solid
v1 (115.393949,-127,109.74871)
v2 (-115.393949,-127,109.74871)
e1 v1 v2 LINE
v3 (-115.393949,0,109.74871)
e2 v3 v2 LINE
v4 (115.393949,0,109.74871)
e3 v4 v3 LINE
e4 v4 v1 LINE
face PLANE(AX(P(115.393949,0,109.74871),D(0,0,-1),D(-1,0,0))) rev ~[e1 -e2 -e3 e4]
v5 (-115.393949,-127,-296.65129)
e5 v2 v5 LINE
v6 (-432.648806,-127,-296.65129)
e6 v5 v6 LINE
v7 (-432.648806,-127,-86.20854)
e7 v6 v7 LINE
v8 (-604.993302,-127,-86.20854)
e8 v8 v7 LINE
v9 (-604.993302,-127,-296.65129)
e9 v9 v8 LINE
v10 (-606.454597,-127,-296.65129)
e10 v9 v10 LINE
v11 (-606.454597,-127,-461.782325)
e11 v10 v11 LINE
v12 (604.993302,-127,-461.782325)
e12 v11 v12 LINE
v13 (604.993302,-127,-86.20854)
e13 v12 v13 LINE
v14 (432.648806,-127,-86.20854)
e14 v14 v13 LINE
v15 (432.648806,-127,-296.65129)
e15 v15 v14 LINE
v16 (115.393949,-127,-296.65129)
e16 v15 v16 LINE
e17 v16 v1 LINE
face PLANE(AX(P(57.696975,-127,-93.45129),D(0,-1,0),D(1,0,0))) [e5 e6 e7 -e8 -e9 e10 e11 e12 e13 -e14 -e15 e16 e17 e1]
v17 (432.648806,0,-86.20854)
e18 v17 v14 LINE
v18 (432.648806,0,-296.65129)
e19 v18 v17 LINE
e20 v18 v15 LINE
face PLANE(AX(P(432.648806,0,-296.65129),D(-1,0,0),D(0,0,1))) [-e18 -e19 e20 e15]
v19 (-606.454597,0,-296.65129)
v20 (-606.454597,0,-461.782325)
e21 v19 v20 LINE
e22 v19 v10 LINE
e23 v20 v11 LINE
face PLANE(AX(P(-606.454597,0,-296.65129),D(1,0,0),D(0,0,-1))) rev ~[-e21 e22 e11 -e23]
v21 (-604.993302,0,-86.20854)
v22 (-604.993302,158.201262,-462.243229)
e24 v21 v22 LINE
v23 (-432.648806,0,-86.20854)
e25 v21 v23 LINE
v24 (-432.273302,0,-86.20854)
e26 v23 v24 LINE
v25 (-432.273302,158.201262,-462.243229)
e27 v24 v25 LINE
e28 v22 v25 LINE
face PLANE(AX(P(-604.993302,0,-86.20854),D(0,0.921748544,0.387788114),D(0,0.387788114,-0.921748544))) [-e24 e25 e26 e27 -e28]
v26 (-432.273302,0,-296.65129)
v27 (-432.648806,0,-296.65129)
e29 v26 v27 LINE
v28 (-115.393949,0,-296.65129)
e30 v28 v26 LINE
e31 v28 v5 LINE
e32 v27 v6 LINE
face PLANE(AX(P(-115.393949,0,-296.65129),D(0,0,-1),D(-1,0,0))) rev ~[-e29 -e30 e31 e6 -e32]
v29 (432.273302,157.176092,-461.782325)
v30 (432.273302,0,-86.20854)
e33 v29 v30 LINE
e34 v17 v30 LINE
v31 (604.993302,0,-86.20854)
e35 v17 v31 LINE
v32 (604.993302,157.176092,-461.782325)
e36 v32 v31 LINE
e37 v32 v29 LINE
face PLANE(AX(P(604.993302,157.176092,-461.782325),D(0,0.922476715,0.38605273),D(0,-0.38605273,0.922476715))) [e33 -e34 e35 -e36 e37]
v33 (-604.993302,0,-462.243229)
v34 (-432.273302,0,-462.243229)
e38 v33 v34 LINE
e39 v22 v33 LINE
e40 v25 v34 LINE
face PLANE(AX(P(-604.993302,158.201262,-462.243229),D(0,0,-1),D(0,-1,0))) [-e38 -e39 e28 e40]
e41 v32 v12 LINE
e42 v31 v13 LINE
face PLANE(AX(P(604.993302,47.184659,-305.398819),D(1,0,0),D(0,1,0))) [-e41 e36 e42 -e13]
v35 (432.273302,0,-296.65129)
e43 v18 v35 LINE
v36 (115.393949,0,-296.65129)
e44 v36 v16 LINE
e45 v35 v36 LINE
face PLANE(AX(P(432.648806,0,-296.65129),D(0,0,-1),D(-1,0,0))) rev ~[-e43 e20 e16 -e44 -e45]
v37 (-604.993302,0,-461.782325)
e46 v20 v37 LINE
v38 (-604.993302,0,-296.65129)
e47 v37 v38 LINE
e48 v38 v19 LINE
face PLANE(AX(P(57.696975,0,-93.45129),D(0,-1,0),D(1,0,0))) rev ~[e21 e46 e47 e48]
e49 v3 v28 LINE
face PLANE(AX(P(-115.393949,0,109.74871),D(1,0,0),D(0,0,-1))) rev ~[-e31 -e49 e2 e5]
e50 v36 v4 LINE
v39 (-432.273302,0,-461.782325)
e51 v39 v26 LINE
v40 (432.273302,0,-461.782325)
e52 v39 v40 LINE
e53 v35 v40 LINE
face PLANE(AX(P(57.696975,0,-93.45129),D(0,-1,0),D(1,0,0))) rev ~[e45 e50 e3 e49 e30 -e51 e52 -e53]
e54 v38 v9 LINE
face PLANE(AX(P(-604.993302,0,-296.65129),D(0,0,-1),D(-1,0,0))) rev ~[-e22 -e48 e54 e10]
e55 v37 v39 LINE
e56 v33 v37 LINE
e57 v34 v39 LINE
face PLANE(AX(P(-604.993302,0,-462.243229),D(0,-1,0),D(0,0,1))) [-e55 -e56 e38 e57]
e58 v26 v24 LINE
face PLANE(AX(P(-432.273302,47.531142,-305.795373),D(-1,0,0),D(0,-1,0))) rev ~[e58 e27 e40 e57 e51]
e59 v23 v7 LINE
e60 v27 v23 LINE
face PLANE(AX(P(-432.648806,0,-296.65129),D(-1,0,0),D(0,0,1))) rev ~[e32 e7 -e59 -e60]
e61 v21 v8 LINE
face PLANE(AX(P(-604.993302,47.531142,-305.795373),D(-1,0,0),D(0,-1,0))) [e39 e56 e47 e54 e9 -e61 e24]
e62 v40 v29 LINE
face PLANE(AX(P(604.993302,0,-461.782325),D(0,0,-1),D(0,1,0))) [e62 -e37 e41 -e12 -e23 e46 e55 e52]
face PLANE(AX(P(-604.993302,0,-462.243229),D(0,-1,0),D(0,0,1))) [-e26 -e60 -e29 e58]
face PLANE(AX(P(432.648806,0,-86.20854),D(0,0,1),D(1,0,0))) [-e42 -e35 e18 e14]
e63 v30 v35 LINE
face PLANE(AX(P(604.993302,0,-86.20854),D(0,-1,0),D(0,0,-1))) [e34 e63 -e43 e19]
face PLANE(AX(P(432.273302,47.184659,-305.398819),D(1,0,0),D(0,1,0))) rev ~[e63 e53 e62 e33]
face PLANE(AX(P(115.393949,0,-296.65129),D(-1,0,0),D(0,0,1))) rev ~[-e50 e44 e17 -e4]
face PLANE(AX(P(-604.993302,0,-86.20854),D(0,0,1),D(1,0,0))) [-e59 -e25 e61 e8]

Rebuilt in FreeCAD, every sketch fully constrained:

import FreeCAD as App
import Part
import Sketcher

V = App.Vector
Q = App.Units.Quantity

doc = App.newDocument("Part")
body = doc.addObject("PartDesign::Body", "Body")

# Sketch on XZ plane
sketch1 = body.newObject("Sketcher::SketchObject", "Sketch")
sketch1.AttachmentSupport = (doc.getObject("XZ_Plane"), [""])
sketch1.MapMode = "FlatFace"
sketch1.addGeometry(Part.LineSegment(V(115.4, -296.7, 0), V(115.4, 109.7, 0)), False)
sketch1.addGeometry(Part.LineSegment(V(115.4, 109.7, 0), V(-115.4, 109.7, 0)), False)
sketch1.addGeometry(Part.LineSegment(V(-115.4, 109.7, 0), V(-115.4, -296.7, 0)), False)
sketch1.addGeometry(Part.LineSegment(V(-115.4, -296.7, 0), V(-432.6, -296.7, 0)), False)
sketch1.addGeometry(Part.LineSegment(V(-432.6, -296.7, 0), V(-432.6, -86.2, 0)), False)
sketch1.addGeometry(Part.LineSegment(V(-432.6, -86.2, 0), V(-605, -86.2, 0)), False)
sketch1.addGeometry(Part.LineSegment(V(-605, -86.2, 0), V(-605, -296.7, 0)), False)
sketch1.addGeometry(Part.LineSegment(V(-605, -296.7, 0), V(-606.5, -296.7, 0)), False)
sketch1.addGeometry(Part.LineSegment(V(-606.5, -296.7, 0), V(-606.5, -461.8, 0)), False)
sketch1.addGeometry(Part.LineSegment(V(-606.5, -461.8, 0), V(605, -461.8, 0)), False)
sketch1.addGeometry(Part.LineSegment(V(605, -461.8, 0), V(605, -86.2, 0)), False)
sketch1.addGeometry(Part.LineSegment(V(605, -86.2, 0), V(432.6, -86.2, 0)), False)
sketch1.addGeometry(Part.LineSegment(V(432.6, -86.2, 0), V(432.6, -296.7, 0)), False)
sketch1.addGeometry(Part.LineSegment(V(432.6, -296.7, 0), V(115.4, -296.7, 0)), False)
sketch1.addConstraint(Sketcher.Constraint("Coincident", 0, 2, 1, 1))
sketch1.addConstraint(Sketcher.Constraint("Coincident", 1, 2, 2, 1))
sketch1.addConstraint(Sketcher.Constraint("Coincident", 2, 2, 3, 1))
sketch1.addConstraint(Sketcher.Constraint("Coincident", 3, 2, 4, 1))
sketch1.addConstraint(Sketcher.Constraint("Coincident", 4, 2, 5, 1))
sketch1.addConstraint(Sketcher.Constraint("Coincident", 5, 2, 6, 1))
sketch1.addConstraint(Sketcher.Constraint("Coincident", 6, 2, 7, 1))
sketch1.addConstraint(Sketcher.Constraint("Coincident", 7, 2, 8, 1))
sketch1.addConstraint(Sketcher.Constraint("Coincident", 8, 2, 9, 1))
sketch1.addConstraint(Sketcher.Constraint("Coincident", 9, 2, 10, 1))
sketch1.addConstraint(Sketcher.Constraint("Coincident", 10, 2, 11, 1))
sketch1.addConstraint(Sketcher.Constraint("Coincident", 11, 2, 12, 1))
sketch1.addConstraint(Sketcher.Constraint("Coincident", 12, 2, 13, 1))
sketch1.addConstraint(Sketcher.Constraint("Coincident", 13, 2, 0, 1))
sketch1.addConstraint(Sketcher.Constraint("Vertical", 0))
sketch1.addConstraint(Sketcher.Constraint("Horizontal", 1))
sketch1.addConstraint(Sketcher.Constraint("Vertical", 2))
sketch1.addConstraint(Sketcher.Constraint("Horizontal", 3))
sketch1.addConstraint(Sketcher.Constraint("Vertical", 4))
sketch1.addConstraint(Sketcher.Constraint("Horizontal", 5))
sketch1.addConstraint(Sketcher.Constraint("Vertical", 6))
sketch1.addConstraint(Sketcher.Constraint("Horizontal", 7))
sketch1.addConstraint(Sketcher.Constraint("Vertical", 8))
sketch1.addConstraint(Sketcher.Constraint("Horizontal", 9))
sketch1.addConstraint(Sketcher.Constraint("Vertical", 10))
sketch1.addConstraint(Sketcher.Constraint("Horizontal", 11))
sketch1.addConstraint(Sketcher.Constraint("Vertical", 12))
sketch1.addConstraint(Sketcher.Constraint("Horizontal", 13))
sketch1.addConstraint(Sketcher.Constraint("Symmetric", 5, 2, 10, 2, -2))
sketch1.addConstraint(Sketcher.Constraint("Symmetric", 3, 2, 12, 2, -2))
sketch1.addConstraint(Sketcher.Constraint("Horizontal", 3, 2, 6, 2))
sketch1.addConstraint(Sketcher.Constraint("Equal", 3, 13))
sketch1.addConstraint(Sketcher.Constraint("DistanceY", 0, 1, 0, 2, Q("16 in")))
sketch1.addConstraint(Sketcher.Constraint("DistanceX", 1, 2, 1, 1, 230.787898))
sketch1.addConstraint(Sketcher.Constraint("DistanceX", 9, 1, 9, 2, 1211.447899))
sketch1.addConstraint(Sketcher.Constraint("DistanceY", 4, 1, 4, 2, 210.44275))
sketch1.addConstraint(Sketcher.Constraint("DistanceX", 5, 2, -1, 1, 604.993302))
sketch1.addConstraint(Sketcher.Constraint("DistanceX", 3, 2, 3, 1, 317.254857))
sketch1.addConstraint(Sketcher.Constraint("DistanceY", 8, 2, 8, 1, 165.131035))
sketch1.addConstraint(Sketcher.Constraint("DistanceY", -1, 1, 0, 2, 109.74871))
pad1 = body.newObject("PartDesign::Pad", "Pad")
pad1.Profile = sketch1
pad1.Length = Q("5 in")

# Sketch on YZ plane
sketch2 = body.newObject("Sketcher::SketchObject", "Sketch001")
sketch2.AttachmentSupport = (doc.getObject("YZ_Plane"), [""])
sketch2.MapMode = "FlatFace"
sketch2.AttachmentOffset = App.Placement(V(0, 0, -604.993302), App.Rotation())
sketch2.addGeometry(Part.LineSegment(V(0, -462, 0), V(0, -86, 0)), False)
sketch2.addGeometry(Part.LineSegment(V(0, -86, 0), V(158, -462, 0)), False)
sketch2.addGeometry(Part.LineSegment(V(158, -462, 0), V(0, -462, 0)), False)
sketch2.addConstraint(Sketcher.Constraint("Coincident", 0, 2, 1, 1))
sketch2.addConstraint(Sketcher.Constraint("Coincident", 1, 2, 2, 1))
sketch2.addConstraint(Sketcher.Constraint("Coincident", 2, 2, 0, 1))
sketch2.addConstraint(Sketcher.Constraint("Vertical", 0))
sketch2.addConstraint(Sketcher.Constraint("Horizontal", 2))
sketch2.addConstraint(Sketcher.Constraint("PointOnObject", 0, 2, -2))
sketch2.addConstraint(Sketcher.Constraint("DistanceY", 0, 1, 0, 2, 376.034689))
sketch2.addConstraint(Sketcher.Constraint("DistanceX", 2, 2, 2, 1, 158.201262))
sketch2.addConstraint(Sketcher.Constraint("DistanceY", 0, 2, -1, 1, 86.20854))
pad2 = body.newObject("PartDesign::Pad", "Pad001")
pad2.Profile = sketch2
pad2.Length = Q("6.8 in")

# Sketch on YZ plane
sketch3 = body.newObject("Sketcher::SketchObject", "Sketch002")
sketch3.AttachmentSupport = (doc.getObject("YZ_Plane"), [""])
sketch3.MapMode = "FlatFace"
sketch3.AttachmentOffset = App.Placement(V(0, 0, 604.993302), App.Rotation())
sketch3.addGeometry(Part.LineSegment(V(157, -462, 0), V(0, -86, 0)), False)
sketch3.addGeometry(Part.LineSegment(V(0, -86, 0), V(0, -462, 0)), False)
sketch3.addGeometry(Part.LineSegment(V(0, -462, 0), V(157, -462, 0)), False)
sketch3.addConstraint(Sketcher.Constraint("Coincident", 0, 2, 1, 1))
sketch3.addConstraint(Sketcher.Constraint("Coincident", 1, 2, 2, 1))
sketch3.addConstraint(Sketcher.Constraint("Coincident", 2, 2, 0, 1))
sketch3.addConstraint(Sketcher.Constraint("Vertical", 1))
sketch3.addConstraint(Sketcher.Constraint("Horizontal", 2))
sketch3.addConstraint(Sketcher.Constraint("PointOnObject", 0, 2, -2))
sketch3.addConstraint(Sketcher.Constraint("Distance", 0, 407.136331))
sketch3.addConstraint(Sketcher.Constraint("DistanceX", 2, 1, 2, 2, 157.176092))
sketch3.addConstraint(Sketcher.Constraint("DistanceY", 0, 2, -1, 1, 86.20854))
pad3 = body.newObject("PartDesign::Pad", "Pad002")
pad3.Profile = sketch3
pad3.Length = Q("6.8 in")
pad3.Reversed = True

doc.recompute()
